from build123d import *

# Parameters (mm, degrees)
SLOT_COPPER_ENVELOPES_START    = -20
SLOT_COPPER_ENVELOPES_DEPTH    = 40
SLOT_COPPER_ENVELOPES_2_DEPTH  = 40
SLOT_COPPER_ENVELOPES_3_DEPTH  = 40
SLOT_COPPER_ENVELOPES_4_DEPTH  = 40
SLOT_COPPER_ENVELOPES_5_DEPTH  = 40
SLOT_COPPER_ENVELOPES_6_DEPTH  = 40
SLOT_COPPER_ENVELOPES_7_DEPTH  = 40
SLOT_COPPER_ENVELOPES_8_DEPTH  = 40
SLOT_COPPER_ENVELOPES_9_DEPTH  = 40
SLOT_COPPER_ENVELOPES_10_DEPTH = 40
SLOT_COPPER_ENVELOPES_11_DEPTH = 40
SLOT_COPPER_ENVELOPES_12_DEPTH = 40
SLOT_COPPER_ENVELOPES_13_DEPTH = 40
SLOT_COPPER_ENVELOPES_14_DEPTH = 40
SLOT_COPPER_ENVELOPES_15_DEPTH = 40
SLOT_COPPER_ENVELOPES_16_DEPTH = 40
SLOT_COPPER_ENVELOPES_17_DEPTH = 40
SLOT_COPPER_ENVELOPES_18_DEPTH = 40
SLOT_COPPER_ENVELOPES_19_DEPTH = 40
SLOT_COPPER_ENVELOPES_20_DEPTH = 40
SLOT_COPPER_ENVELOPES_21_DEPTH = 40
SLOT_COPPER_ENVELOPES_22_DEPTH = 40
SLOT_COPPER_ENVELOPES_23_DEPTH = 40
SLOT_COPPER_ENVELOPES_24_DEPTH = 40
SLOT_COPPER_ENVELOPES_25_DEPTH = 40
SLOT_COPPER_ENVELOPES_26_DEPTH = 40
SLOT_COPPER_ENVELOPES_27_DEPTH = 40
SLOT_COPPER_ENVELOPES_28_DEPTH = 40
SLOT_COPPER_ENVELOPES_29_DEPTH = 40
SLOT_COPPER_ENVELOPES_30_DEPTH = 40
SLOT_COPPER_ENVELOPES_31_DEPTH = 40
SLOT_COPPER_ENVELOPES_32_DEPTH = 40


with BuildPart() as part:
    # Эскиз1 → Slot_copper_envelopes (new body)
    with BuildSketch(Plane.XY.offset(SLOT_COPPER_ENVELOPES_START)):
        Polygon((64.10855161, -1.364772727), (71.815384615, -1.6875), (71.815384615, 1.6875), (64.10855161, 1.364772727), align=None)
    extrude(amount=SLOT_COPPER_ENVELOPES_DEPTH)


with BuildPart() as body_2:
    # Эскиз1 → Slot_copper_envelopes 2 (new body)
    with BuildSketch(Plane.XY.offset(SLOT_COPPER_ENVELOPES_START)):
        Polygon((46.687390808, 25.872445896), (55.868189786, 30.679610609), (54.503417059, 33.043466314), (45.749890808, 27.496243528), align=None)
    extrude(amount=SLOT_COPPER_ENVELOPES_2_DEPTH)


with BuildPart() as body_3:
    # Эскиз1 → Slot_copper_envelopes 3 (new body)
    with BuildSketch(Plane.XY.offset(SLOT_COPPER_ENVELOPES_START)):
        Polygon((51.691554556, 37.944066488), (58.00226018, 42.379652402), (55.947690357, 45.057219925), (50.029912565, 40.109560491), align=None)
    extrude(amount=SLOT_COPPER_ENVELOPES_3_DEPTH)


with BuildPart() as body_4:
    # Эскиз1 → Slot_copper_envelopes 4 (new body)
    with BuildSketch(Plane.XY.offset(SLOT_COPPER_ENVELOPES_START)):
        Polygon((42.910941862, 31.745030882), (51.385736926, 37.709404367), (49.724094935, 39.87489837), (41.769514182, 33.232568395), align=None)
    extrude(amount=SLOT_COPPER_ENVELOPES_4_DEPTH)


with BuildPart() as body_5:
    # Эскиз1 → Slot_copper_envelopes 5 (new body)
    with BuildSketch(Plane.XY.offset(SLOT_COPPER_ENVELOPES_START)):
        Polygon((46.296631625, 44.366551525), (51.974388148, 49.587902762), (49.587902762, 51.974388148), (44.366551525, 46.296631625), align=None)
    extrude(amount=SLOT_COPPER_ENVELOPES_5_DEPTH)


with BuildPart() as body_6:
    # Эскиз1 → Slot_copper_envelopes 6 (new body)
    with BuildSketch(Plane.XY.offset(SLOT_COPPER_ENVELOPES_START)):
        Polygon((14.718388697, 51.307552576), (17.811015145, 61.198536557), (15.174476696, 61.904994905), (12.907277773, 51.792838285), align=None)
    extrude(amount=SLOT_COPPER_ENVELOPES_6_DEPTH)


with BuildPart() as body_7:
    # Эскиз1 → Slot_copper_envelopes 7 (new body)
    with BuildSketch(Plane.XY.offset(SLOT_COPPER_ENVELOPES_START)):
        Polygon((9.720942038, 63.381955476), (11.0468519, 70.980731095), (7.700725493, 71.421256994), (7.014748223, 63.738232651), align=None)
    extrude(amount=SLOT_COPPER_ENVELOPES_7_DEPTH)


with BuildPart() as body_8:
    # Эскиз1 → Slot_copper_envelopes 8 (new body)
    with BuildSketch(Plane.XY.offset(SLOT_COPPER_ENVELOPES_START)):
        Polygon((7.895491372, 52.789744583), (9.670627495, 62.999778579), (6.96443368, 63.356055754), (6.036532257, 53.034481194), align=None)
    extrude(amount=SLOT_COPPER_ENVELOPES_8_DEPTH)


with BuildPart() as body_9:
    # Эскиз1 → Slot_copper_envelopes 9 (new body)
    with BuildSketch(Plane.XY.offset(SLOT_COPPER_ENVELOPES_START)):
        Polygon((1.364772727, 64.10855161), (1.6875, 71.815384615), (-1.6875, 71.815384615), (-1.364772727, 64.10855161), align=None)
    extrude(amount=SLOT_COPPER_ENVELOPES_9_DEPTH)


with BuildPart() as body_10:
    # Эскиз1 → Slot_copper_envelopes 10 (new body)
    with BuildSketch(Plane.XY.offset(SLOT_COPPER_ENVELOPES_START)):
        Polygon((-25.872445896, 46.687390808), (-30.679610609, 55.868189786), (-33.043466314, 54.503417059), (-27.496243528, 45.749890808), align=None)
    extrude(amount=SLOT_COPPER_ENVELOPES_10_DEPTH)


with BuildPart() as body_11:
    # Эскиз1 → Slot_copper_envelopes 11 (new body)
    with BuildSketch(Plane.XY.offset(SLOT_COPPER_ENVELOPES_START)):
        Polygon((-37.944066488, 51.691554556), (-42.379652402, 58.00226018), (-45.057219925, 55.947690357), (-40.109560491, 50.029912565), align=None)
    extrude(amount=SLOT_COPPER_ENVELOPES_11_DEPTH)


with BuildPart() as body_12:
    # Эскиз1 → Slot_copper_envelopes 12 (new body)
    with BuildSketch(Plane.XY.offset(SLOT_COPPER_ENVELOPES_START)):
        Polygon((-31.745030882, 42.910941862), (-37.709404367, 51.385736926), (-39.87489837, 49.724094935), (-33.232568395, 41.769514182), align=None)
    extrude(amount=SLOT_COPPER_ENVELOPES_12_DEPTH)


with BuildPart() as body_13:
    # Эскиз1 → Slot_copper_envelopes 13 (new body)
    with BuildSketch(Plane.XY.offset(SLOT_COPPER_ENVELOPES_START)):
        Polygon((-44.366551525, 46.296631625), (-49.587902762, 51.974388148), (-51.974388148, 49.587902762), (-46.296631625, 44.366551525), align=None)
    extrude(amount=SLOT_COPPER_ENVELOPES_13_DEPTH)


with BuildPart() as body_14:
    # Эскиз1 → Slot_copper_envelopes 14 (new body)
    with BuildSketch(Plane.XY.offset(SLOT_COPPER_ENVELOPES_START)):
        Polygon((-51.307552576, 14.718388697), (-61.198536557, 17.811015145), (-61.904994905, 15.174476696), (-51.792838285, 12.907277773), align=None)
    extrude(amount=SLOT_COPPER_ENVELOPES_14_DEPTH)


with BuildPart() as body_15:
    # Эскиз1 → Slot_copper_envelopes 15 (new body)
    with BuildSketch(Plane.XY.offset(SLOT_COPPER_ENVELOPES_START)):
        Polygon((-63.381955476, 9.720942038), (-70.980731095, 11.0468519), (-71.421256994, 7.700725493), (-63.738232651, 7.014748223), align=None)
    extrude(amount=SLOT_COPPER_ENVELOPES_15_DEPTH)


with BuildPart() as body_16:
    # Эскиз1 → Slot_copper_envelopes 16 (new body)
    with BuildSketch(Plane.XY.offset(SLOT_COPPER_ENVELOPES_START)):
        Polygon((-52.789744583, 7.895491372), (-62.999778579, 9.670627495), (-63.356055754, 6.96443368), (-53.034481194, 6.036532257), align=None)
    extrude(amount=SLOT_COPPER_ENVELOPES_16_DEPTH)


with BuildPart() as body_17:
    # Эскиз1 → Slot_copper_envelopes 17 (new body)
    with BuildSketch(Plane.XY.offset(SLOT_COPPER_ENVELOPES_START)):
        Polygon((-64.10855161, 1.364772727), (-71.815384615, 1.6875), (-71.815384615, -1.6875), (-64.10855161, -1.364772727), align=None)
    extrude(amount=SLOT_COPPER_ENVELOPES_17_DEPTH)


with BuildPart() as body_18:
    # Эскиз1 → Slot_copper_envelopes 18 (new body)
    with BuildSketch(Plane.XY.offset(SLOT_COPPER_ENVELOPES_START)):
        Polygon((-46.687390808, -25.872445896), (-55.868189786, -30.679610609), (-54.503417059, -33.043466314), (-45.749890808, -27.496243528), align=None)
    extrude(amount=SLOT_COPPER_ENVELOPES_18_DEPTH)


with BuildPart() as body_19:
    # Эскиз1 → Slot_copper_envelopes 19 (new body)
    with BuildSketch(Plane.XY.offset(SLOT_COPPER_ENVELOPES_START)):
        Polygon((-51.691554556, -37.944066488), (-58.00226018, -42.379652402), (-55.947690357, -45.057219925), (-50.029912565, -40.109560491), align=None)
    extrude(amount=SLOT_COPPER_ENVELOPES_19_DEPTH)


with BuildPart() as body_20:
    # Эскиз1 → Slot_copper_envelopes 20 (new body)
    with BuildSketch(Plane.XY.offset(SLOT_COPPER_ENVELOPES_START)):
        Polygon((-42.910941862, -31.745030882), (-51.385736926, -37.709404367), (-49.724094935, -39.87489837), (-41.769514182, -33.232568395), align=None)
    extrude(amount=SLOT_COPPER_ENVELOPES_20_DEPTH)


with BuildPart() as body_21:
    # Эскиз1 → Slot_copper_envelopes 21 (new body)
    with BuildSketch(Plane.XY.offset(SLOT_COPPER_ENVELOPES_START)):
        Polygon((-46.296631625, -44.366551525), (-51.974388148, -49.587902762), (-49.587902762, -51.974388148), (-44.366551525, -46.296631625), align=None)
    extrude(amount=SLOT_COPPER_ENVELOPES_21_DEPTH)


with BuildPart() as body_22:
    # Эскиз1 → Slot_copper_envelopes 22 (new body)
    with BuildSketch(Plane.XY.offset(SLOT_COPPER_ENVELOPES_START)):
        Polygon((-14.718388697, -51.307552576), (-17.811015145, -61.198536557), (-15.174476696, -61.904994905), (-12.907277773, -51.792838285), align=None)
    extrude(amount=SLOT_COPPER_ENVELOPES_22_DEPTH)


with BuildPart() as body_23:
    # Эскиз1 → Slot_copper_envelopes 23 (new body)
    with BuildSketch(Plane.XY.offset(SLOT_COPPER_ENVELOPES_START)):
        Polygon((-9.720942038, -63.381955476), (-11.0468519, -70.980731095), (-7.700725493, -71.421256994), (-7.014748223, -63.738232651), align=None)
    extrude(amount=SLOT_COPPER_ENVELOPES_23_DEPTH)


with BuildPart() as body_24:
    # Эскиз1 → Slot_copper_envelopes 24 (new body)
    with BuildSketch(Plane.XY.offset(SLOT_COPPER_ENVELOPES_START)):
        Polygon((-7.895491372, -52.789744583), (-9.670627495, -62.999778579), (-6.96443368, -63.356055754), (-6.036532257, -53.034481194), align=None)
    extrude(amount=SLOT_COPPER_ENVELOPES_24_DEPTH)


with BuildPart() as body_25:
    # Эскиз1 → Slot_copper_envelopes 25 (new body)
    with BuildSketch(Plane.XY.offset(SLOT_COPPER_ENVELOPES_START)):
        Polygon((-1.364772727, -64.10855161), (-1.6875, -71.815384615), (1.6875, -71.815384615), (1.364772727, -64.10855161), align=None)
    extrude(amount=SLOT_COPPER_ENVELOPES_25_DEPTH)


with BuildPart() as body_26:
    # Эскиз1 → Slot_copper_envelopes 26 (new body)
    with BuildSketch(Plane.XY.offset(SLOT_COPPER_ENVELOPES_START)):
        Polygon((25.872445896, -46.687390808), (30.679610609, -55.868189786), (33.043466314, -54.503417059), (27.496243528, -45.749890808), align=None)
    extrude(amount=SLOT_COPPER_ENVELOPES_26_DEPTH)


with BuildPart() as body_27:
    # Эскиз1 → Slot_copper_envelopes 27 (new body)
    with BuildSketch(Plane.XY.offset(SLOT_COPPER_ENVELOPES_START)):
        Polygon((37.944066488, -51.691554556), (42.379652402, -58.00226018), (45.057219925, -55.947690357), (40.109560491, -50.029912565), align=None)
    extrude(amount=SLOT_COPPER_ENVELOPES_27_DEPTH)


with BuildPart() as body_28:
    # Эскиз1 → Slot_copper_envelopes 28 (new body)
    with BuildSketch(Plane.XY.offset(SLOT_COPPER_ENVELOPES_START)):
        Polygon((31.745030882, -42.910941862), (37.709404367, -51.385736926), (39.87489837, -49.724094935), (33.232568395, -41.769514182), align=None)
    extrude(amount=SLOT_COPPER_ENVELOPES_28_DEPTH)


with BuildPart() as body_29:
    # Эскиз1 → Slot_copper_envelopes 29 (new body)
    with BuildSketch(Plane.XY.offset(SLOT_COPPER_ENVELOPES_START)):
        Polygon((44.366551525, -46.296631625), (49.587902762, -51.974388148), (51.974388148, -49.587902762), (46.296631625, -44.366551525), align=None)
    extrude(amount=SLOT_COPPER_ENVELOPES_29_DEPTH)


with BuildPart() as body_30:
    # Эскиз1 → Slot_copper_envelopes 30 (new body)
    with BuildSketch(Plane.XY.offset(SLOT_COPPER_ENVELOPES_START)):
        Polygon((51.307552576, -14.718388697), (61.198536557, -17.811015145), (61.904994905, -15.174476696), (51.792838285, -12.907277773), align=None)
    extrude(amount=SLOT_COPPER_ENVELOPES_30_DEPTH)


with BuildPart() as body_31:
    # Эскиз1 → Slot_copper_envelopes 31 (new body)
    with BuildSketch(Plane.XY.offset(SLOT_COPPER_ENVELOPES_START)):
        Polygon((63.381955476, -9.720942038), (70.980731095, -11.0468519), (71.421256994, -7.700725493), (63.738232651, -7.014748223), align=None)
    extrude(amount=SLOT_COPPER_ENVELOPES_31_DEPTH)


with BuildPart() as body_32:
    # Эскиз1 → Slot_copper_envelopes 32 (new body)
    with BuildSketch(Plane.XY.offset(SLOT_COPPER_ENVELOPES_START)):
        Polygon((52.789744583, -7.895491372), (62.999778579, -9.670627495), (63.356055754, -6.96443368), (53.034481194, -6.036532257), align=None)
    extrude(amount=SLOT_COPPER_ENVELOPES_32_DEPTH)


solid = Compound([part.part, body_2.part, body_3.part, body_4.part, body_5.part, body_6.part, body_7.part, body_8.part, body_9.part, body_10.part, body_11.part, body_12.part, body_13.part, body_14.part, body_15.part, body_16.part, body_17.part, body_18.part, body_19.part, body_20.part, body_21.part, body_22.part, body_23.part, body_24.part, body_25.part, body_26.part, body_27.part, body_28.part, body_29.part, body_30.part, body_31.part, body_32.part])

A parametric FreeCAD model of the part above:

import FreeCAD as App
import Part
import Sketcher
Q = App.Units.Quantity


def add_polygon(sketch, points):
    """Adds a closed chain of lines whose ends are joined by coincident constraints."""
    first, n = sketch.GeometryCount, len(points)
    for a, b in zip(points, points[1:] + points[:1]):
        sketch.addGeometry(Part.LineSegment(App.Vector(*a, 0), App.Vector(*b, 0)), False)
    for i in range(n):
        sketch.addConstraint(Sketcher.Constraint("Coincident", first + i, 2, first + (i + 1) % n, 1))

doc = App.newDocument("Part")
body = doc.addObject("PartDesign::Body", "Body")

sketch1 = body.newObject("Sketcher::SketchObject", "Sketch")
sketch1.AttachmentSupport = (doc.getObject("XY_Plane"), [""])
sketch1.MapMode = "FlatFace"
sketch1.AttachmentOffset = App.Placement(App.Vector(0, 0, -20), App.Rotation())
add_polygon(sketch1, [(64.1, -1.4), (71.8, -1.7), (71.8, 1.7), (64.1, 1.4)])
sketch1.addConstraint(Sketcher.Constraint("Vertical", 1))
sketch1.addConstraint(Sketcher.Constraint("Vertical", 3))
sketch1.addConstraint(Sketcher.Constraint("Equal", 0, 2))
sketch1.addConstraint(Sketcher.Constraint("DistanceY", 1, 1, 1, 2, 3.375))
sketch1.addConstraint(Sketcher.Constraint("DistanceY", 0, 2, -1, 1, 1.6875))
sketch1.addConstraint(Sketcher.Constraint("DistanceY", 3, 2, 3, 1, 2.729545))
sketch1.addConstraint(Sketcher.Constraint("DistanceX", -1, 1, 2, 2, 64.108552))
sketch1.addConstraint(Sketcher.Constraint("Distance", 0, 7.713587))
pad1 = body.newObject("PartDesign::Pad", "Pad")
pad1.Profile = sketch1
pad1.Length = 40
body2 = doc.addObject("PartDesign::Body", "Body001")

sketch2 = body2.newObject("Sketcher::SketchObject", "Sketch001")
sketch2.AttachmentSupport = (doc.getObject("XY_Plane001"), [""])
sketch2.MapMode = "FlatFace"
sketch2.AttachmentOffset = App.Placement(App.Vector(0, 0, -20), App.Rotation())
add_polygon(sketch2, [(46.7, 25.9), (55.9, 30.7), (54.5, 33), (45.7, 27.5)])
sketch2.addConstraint(Sketcher.Constraint("Parallel", 1, 3))
sketch2.addConstraint(Sketcher.Constraint("Equal", 0, 2))
sketch2.addConstraint(Sketcher.Constraint("Angle", 1, Q("120 deg")))
sketch2.addConstraint(Sketcher.Constraint("Distance", 3, 1.875))
sketch2.addConstraint(Sketcher.Constraint("Distance", 0, 10.363199))
sketch2.addConstraint(Sketcher.Constraint("DistanceX", 2, 2, 0, 2, 10.118299))
sketch2.addConstraint(Sketcher.Constraint("DistanceX", -1, 1, 0, 2, 55.86819))
sketch2.addConstraint(Sketcher.Constraint("DistanceY", -1, 1, 0, 2, 30.679611))
pad2 = body2.newObject("PartDesign::Pad", "Pad001")
pad2.Profile = sketch2
pad2.Length = 40
body3 = doc.addObject("PartDesign::Body", "Body002")

sketch3 = body3.newObject("Sketcher::SketchObject", "Sketch002")
sketch3.AttachmentSupport = (doc.getObject("XY_Plane002"), [""])
sketch3.MapMode = "FlatFace"
sketch3.AttachmentOffset = App.Placement(App.Vector(0, 0, -20), App.Rotation())
add_polygon(sketch3, [(51.7, 37.9), (58, 42.4), (55.9, 45.1), (50, 40.1)])
sketch3.addConstraint(Sketcher.Constraint("Parallel", 1, 3))
sketch3.addConstraint(Sketcher.Constraint("Equal", 0, 2))
sketch3.addConstraint(Sketcher.Constraint("Angle", 1, Q("127.5 deg")))
sketch3.addConstraint(Sketcher.Constraint("Distance", 1, 3.375))
sketch3.addConstraint(Sketcher.Constraint("DistanceX", -1, 1, 0, 2, 58.00226))
sketch3.addConstraint(Sketcher.Constraint("DistanceY", -1, 1, 1, 2, 45.05722))
sketch3.addConstraint(Sketcher.Constraint("DistanceY", -1, 1, 2, 2, 40.10956))
sketch3.addConstraint(Sketcher.Constraint("DistanceX", 2, 2, 3, 2, 1.661642))
pad3 = body3.newObject("PartDesign::Pad", "Pad002")
pad3.Profile = sketch3
pad3.Length = 40
body4 = doc.addObject("PartDesign::Body", "Body003")

sketch4 = body4.newObject("Sketcher::SketchObject", "Sketch003")
sketch4.AttachmentSupport = (doc.getObject("XY_Plane003"), [""])
sketch4.MapMode = "FlatFace"
sketch4.AttachmentOffset = App.Placement(App.Vector(0, 0, -20), App.Rotation())
add_polygon(sketch4, [(42.9, 31.7), (51.4, 37.7), (49.7, 39.9), (41.8, 33.2)])
sketch4.addConstraint(Sketcher.Constraint("Parallel", 1, 3))
sketch4.addConstraint(Sketcher.Constraint("Equal", 0, 2))
sketch4.addConstraint(Sketcher.Constraint("Angle", 1, Q("127.5 deg")))
sketch4.addConstraint(Sketcher.Constraint("Distance", 3, 1.875))
sketch4.addConstraint(Sketcher.Constraint("Distance", 0, 10.363199))
sketch4.addConstraint(Sketcher.Constraint("DistanceY", -1, 1, 1, 2, 39.874898))
sketch4.addConstraint(Sketcher.Constraint("DistanceY", -1, 1, 2, 2, 33.232568))
sketch4.addConstraint(Sketcher.Constraint("DistanceX", -1, 1, 3, 2, 42.910942))
pad4 = body4.newObject("PartDesign::Pad", "Pad003")
pad4.Profile = sketch4
pad4.Length = 40
body5 = doc.addObject("PartDesign::Body", "Body004")

sketch5 = body5.newObject("Sketcher::SketchObject", "Sketch004")
sketch5.AttachmentSupport = (doc.getObject("XY_Plane004"), [""])
sketch5.MapMode = "FlatFace"
sketch5.AttachmentOffset = App.Placement(App.Vector(0, 0, -20), App.Rotation())
add_polygon(sketch5, [(46.3, 44.4), (52, 49.6), (49.6, 52), (44.4, 46.3)])
sketch5.addConstraint(Sketcher.Constraint("Parallel", 1, 3))
sketch5.addConstraint(Sketcher.Constraint("Equal", 0, 2))
sketch5.addConstraint(Sketcher.Constraint("Angle", 1, Q("135 deg")))
sketch5.addConstraint(Sketcher.Constraint("Distance", 1, 3.375))
sketch5.addConstraint(Sketcher.Constraint("DistanceX", -1, 1, 0, 2, 51.974388))
sketch5.addConstraint(Sketcher.Constraint("DistanceY", -1, 1, 1, 2, 51.974388))
sketch5.addConstraint(Sketcher.Constraint("DistanceX", -1, 1, 2, 2, 44.366552))
sketch5.addConstraint(Sketcher.Constraint("DistanceY", -1, 1, 2, 2, 46.296632))
pad5 = body5.newObject("PartDesign::Pad", "Pad004")
pad5.Profile = sketch5
pad5.Length = 40
body6 = doc.addObject("PartDesign::Body", "Body005")

sketch6 = body6.newObject("Sketcher::SketchObject", "Sketch005")
sketch6.AttachmentSupport = (doc.getObject("XY_Plane005"), [""])
sketch6.MapMode = "FlatFace"
sketch6.AttachmentOffset = App.Placement(App.Vector(0, 0, -20), App.Rotation())
add_polygon(sketch6, [(14.7, 51.3), (17.8, 61.2), (15.2, 61.9), (12.9, 51.8)])
sketch6.addConstraint(Sketcher.Constraint("Parallel", 1, 3))
sketch6.addConstraint(Sketcher.Constraint("Equal", 0, 2))
sketch6.addConstraint(Sketcher.Constraint("Angle", 1, Q("165 deg")))
sketch6.addConstraint(Sketcher.Constraint("Distance", 3, 1.875))
sketch6.addConstraint(Sketcher.Constraint("Distance", 0, 10.363199))
sketch6.addConstraint(Sketcher.Constraint("DistanceX", 2, 2, 1, 2, 2.267199))
sketch6.addConstraint(Sketcher.Constraint("DistanceY", -1, 1, 2, 2, 51.792838))
sketch6.addConstraint(Sketcher.Constraint("DistanceX", -1, 1, 3, 2, 14.718389))
pad6 = body6.newObject("PartDesign::Pad", "Pad005")
pad6.Profile = sketch6
pad6.Length = 40
body7 = doc.addObject("PartDesign::Body", "Body006")

sketch7 = body7.newObject("Sketcher::SketchObject", "Sketch006")
sketch7.AttachmentSupport = (doc.getObject("XY_Plane006"), [""])
sketch7.MapMode = "FlatFace"
sketch7.AttachmentOffset = App.Placement(App.Vector(0, 0, -20), App.Rotation())
add_polygon(sketch7, [(9.7, 63.4), (11, 71), (7.7, 71.4), (7, 63.7)])
sketch7.addConstraint(Sketcher.Constraint("Parallel", 1, 3))
sketch7.addConstraint(Sketcher.Constraint("Equal", 0, 2))
sketch7.addConstraint(Sketcher.Constraint("Angle", 1, Q("172.5 deg")))
sketch7.addConstraint(Sketcher.Constraint("Distance", 1, 3.375))
sketch7.addConstraint(Sketcher.Constraint("DistanceY", 2, 2, 0, 2, 7.242498))
sketch7.addConstraint(Sketcher.Constraint("DistanceY", 3, 2, 1, 2, 8.039302))
sketch7.addConstraint(Sketcher.Constraint("DistanceX", -1, 1, 0, 2, 11.046852))
sketch7.addConstraint(Sketcher.Constraint("DistanceY", -1, 1, 0, 2, 70.980731))
pad7 = body7.newObject("PartDesign::Pad", "Pad006")
pad7.Profile = sketch7
pad7.Length = 40
body8 = doc.addObject("PartDesign::Body", "Body007")

sketch8 = body8.newObject("Sketcher::SketchObject", "Sketch007")
sketch8.AttachmentSupport = (doc.getObject("XY_Plane007"), [""])
sketch8.MapMode = "FlatFace"
sketch8.AttachmentOffset = App.Placement(App.Vector(0, 0, -20), App.Rotation())
add_polygon(sketch8, [(7.9, 52.8), (9.7, 63), (7, 63.4), (6, 53)])
sketch8.addConstraint(Sketcher.Constraint("Parallel", 1, 3))
sketch8.addConstraint(Sketcher.Constraint("Equal", 0, 2))
sketch8.addConstraint(Sketcher.Constraint("Angle", 1, Q("172.5 deg")))
sketch8.addConstraint(Sketcher.Constraint("Distance", 3, 1.875))
sketch8.addConstraint(Sketcher.Constraint("Distance", 0, 10.363199))
sketch8.addConstraint(Sketcher.Constraint("DistanceX", 2, 2, 1, 2, 0.927901))
sketch8.addConstraint(Sketcher.Constraint("DistanceY", -1, 1, 0, 2, 62.999779))
sketch8.addConstraint(Sketcher.Constraint("DistanceX", -1, 1, 3, 2, 7.895491))
pad8 = body8.newObject("PartDesign::Pad", "Pad007")
pad8.Profile = sketch8
pad8.Length = 40
body9 = doc.addObject("PartDesign::Body", "Body008")

sketch9 = body9.newObject("Sketcher::SketchObject", "Sketch008")
sketch9.AttachmentSupport = (doc.getObject("XY_Plane008"), [""])
sketch9.MapMode = "FlatFace"
sketch9.AttachmentOffset = App.Placement(App.Vector(0, 0, -20), App.Rotation())
add_polygon(sketch9, [(1.4, 64.1), (1.7, 71.8), (-1.7, 71.8), (-1.4, 64.1)])
sketch9.addConstraint(Sketcher.Constraint("Horizontal", 1))
sketch9.addConstraint(Sketcher.Constraint("Horizontal", 3))
sketch9.addConstraint(Sketcher.Constraint("Equal", 0, 2))
sketch9.addConstraint(Sketcher.Constraint("DistanceX", 1, 2, 1, 1, 3.375))
sketch9.addConstraint(Sketcher.Constraint("DistanceX", -1, 1, 0, 2, 1.6875))
sketch9.addConstraint(Sketcher.Constraint("DistanceX", 3, 1, 3, 2, 2.729545))
sketch9.addConstraint(Sketcher.Constraint("DistanceY", -1, 1, 2, 2, 64.108552))
sketch9.addConstraint(Sketcher.Constraint("Distance", 0, 7.713587))
pad9 = body9.newObject("PartDesign::Pad", "Pad008")
pad9.Profile = sketch9
pad9.Length = 40
body10 = doc.addObject("PartDesign::Body", "Body009")

sketch10 = body10.newObject("Sketcher::SketchObject", "Sketch009")
sketch10.AttachmentSupport = (doc.getObject("XY_Plane009"), [""])
sketch10.MapMode = "FlatFace"
sketch10.AttachmentOffset = App.Placement(App.Vector(0, 0, -20), App.Rotation())
add_polygon(sketch10, [(-25.9, 46.7), (-30.7, 55.9), (-33, 54.5), (-27.5, 45.7)])
sketch10.addConstraint(Sketcher.Constraint("Parallel", 1, 3))
sketch10.addConstraint(Sketcher.Constraint("Equal", 0, 2))
sketch10.addConstraint(Sketcher.Constraint("Angle", 1, Q("-150 deg")))
sketch10.addConstraint(Sketcher.Constraint("Distance", 3, 1.875))
sketch10.addConstraint(Sketcher.Constraint("Distance", 0, 10.363199))
sketch10.addConstraint(Sketcher.Constraint("DistanceY", 2, 2, 0, 2, 10.118299))
sketch10.addConstraint(Sketcher.Constraint("DistanceX", 0, 2, -1, 1, 30.679611))
sketch10.addConstraint(Sketcher.Constraint("DistanceY", -1, 1, 0, 2, 55.86819))
pad10 = body10.newObject("PartDesign::Pad", "Pad009")
pad10.Profile = sketch10
pad10.Length = 40
body11 = doc.addObject("PartDesign::Body", "Body010")

sketch11 = body11.newObject("Sketcher::SketchObject", "Sketch010")
sketch11.AttachmentSupport = (doc.getObject("XY_Plane010"), [""])
sketch11.MapMode = "FlatFace"
sketch11.AttachmentOffset = App.Placement(App.Vector(0, 0, -20), App.Rotation())
add_polygon(sketch11, [(-37.9, 51.7), (-42.4, 58), (-45.1, 55.9), (-40.1, 50)])
sketch11.addConstraint(Sketcher.Constraint("Parallel", 1, 3))
sketch11.addConstraint(Sketcher.Constraint("Equal", 0, 2))
sketch11.addConstraint(Sketcher.Constraint("Angle", 1, Q("-142.5 deg")))
sketch11.addConstraint(Sketcher.Constraint("Distance", 1, 3.375))
sketch11.addConstraint(Sketcher.Constraint("DistanceY", -1, 1, 0, 2, 58.00226))
sketch11.addConstraint(Sketcher.Constraint("DistanceX", 1, 2, -1, 1, 45.05722))
sketch11.addConstraint(Sketcher.Constraint("DistanceX", 2, 2, -1, 1, 40.10956))
sketch11.addConstraint(Sketcher.Constraint("DistanceY", 2, 2, 3, 2, 1.661642))
pad11 = body11.newObject("PartDesign::Pad", "Pad010")
pad11.Profile = sketch11
pad11.Length = 40
body12 = doc.addObject("PartDesign::Body", "Body011")

sketch12 = body12.newObject("Sketcher::SketchObject", "Sketch011")
sketch12.AttachmentSupport = (doc.getObject("XY_Plane011"), [""])
sketch12.MapMode = "FlatFace"
sketch12.AttachmentOffset = App.Placement(App.Vector(0, 0, -20), App.Rotation())
add_polygon(sketch12, [(-31.7, 42.9), (-37.7, 51.4), (-39.9, 49.7), (-33.2, 41.8)])
sketch12.addConstraint(Sketcher.Constraint("Parallel", 1, 3))
sketch12.addConstraint(Sketcher.Constraint("Equal", 0, 2))
sketch12.addConstraint(Sketcher.Constraint("Angle", 1, Q("-142.5 deg")))
sketch12.addConstraint(Sketcher.Constraint("Distance", 3, 1.875))
sketch12.addConstraint(Sketcher.Constraint("Distance", 0, 10.363199))
sketch12.addConstraint(Sketcher.Constraint("DistanceX", 1, 2, -1, 1, 39.874898))
sketch12.addConstraint(Sketcher.Constraint("DistanceX", 2, 2, -1, 1, 33.232568))
sketch12.addConstraint(Sketcher.Constraint("DistanceY", -1, 1, 3, 2, 42.910942))
pad12 = body12.newObject("PartDesign::Pad", "Pad011")
pad12.Profile = sketch12
pad12.Length = 40
body13 = doc.addObject("PartDesign::Body", "Body012")

sketch13 = body13.newObject("Sketcher::SketchObject", "Sketch012")
sketch13.AttachmentSupport = (doc.getObject("XY_Plane012"), [""])
sketch13.MapMode = "FlatFace"
sketch13.AttachmentOffset = App.Placement(App.Vector(0, 0, -20), App.Rotation())
add_polygon(sketch13, [(-44.4, 46.3), (-49.6, 52), (-52, 49.6), (-46.3, 44.4)])
sketch13.addConstraint(Sketcher.Constraint("Parallel", 1, 3))
sketch13.addConstraint(Sketcher.Constraint("Equal", 0, 2))
sketch13.addConstraint(Sketcher.Constraint("Angle", 1, Q("-135 deg")))
sketch13.addConstraint(Sketcher.Constraint("Distance", 1, 3.375))
sketch13.addConstraint(Sketcher.Constraint("DistanceY", -1, 1, 0, 2, 51.974388))
sketch13.addConstraint(Sketcher.Constraint("DistanceX", 1, 2, -1, 1, 51.974388))
sketch13.addConstraint(Sketcher.Constraint("DistanceX", 2, 2, -1, 1, 46.296632))
sketch13.addConstraint(Sketcher.Constraint("DistanceY", -1, 1, 2, 2, 44.366552))
pad13 = body13.newObject("PartDesign::Pad", "Pad012")
pad13.Profile = sketch13
pad13.Length = 40
body14 = doc.addObject("PartDesign::Body", "Body013")

sketch14 = body14.newObject("Sketcher::SketchObject", "Sketch013")
sketch14.AttachmentSupport = (doc.getObject("XY_Plane013"), [""])
sketch14.MapMode = "FlatFace"
sketch14.AttachmentOffset = App.Placement(App.Vector(0, 0, -20), App.Rotation())
add_polygon(sketch14, [(-51.3, 14.7), (-61.2, 17.8), (-61.9, 15.2), (-51.8, 12.9)])
sketch14.addConstraint(Sketcher.Constraint("Parallel", 1, 3))
sketch14.addConstraint(Sketcher.Constraint("Equal", 0, 2))
sketch14.addConstraint(Sketcher.Constraint("Angle", 1, Q("-105 deg")))
sketch14.addConstraint(Sketcher.Constraint("Distance", 3, 1.875))
sketch14.addConstraint(Sketcher.Constraint("Distance", 0, 10.363199))
sketch14.addConstraint(Sketcher.Constraint("DistanceY", 2, 2, 1, 2, 2.267199))
sketch14.addConstraint(Sketcher.Constraint("DistanceX", 2, 2, -1, 1, 51.792838))
sketch14.addConstraint(Sketcher.Constraint("DistanceY", -1, 1, 3, 2, 14.718389))
pad14 = body14.newObject("PartDesign::Pad", "Pad013")
pad14.Profile = sketch14
pad14.Length = 40
body15 = doc.addObject("PartDesign::Body", "Body014")

sketch15 = body15.newObject("Sketcher::SketchObject", "Sketch014")
sketch15.AttachmentSupport = (doc.getObject("XY_Plane014"), [""])
sketch15.MapMode = "FlatFace"
sketch15.AttachmentOffset = App.Placement(App.Vector(0, 0, -20), App.Rotation())
add_polygon(sketch15, [(-63.4, 9.7), (-71, 11), (-71.4, 7.7), (-63.7, 7)])
sketch15.addConstraint(Sketcher.Constraint("Parallel", 1, 3))
sketch15.addConstraint(Sketcher.Constraint("Equal", 0, 2))
sketch15.addConstraint(Sketcher.Constraint("Angle", 1, Q("-97.5 deg")))
sketch15.addConstraint(Sketcher.Constraint("Distance", 1, 3.375))
sketch15.addConstraint(Sketcher.Constraint("DistanceX", 0, 2, 2, 2, 7.242498))
sketch15.addConstraint(Sketcher.Constraint("DistanceX", 1, 2, 3, 2, 8.039302))
sketch15.addConstraint(Sketcher.Constraint("DistanceX", 0, 2, -1, 1, 70.980731))
sketch15.addConstraint(Sketcher.Constraint("DistanceY", -1, 1, 0, 2, 11.046852))
pad15 = body15.newObject("PartDesign::Pad", "Pad014")
pad15.Profile = sketch15
pad15.Length = 40
body16 = doc.addObject("PartDesign::Body", "Body015")

sketch16 = body16.newObject("Sketcher::SketchObject", "Sketch015")
sketch16.AttachmentSupport = (doc.getObject("XY_Plane015"), [""])
sketch16.MapMode = "FlatFace"
sketch16.AttachmentOffset = App.Placement(App.Vector(0, 0, -20), App.Rotation())
add_polygon(sketch16, [(-52.8, 7.9), (-63, 9.7), (-63.4, 7), (-53, 6)])
sketch16.addConstraint(Sketcher.Constraint("Parallel", 1, 3))
sketch16.addConstraint(Sketcher.Constraint("Equal", 0, 2))
sketch16.addConstraint(Sketcher.Constraint("Angle", 1, Q("-97.5 deg")))
sketch16.addConstraint(Sketcher.Constraint("Distance", 3, 1.875))
sketch16.addConstraint(Sketcher.Constraint("Distance", 0, 10.363199))
sketch16.addConstraint(Sketcher.Constraint("DistanceY", 2, 2, 1, 2, 0.927901))
sketch16.addConstraint(Sketcher.Constraint("DistanceX", 0, 2, -1, 1, 62.999779))
sketch16.addConstraint(Sketcher.Constraint("DistanceY", -1, 1, 3, 2, 7.895491))
pad16 = body16.newObject("PartDesign::Pad", "Pad015")
pad16.Profile = sketch16
pad16.Length = 40
body17 = doc.addObject("PartDesign::Body", "Body016")

sketch17 = body17.newObject("Sketcher::SketchObject", "Sketch016")
sketch17.AttachmentSupport = (doc.getObject("XY_Plane016"), [""])
sketch17.MapMode = "FlatFace"
sketch17.AttachmentOffset = App.Placement(App.Vector(0, 0, -20), App.Rotation())
add_polygon(sketch17, [(-64.1, 1.4), (-71.8, 1.7), (-71.8, -1.7), (-64.1, -1.4)])
sketch17.addConstraint(Sketcher.Constraint("Vertical", 1))
sketch17.addConstraint(Sketcher.Constraint("Vertical", 3))
sketch17.addConstraint(Sketcher.Constraint("Equal", 0, 2))
sketch17.addConstraint(Sketcher.Constraint("DistanceY", 1, 2, 1, 1, 3.375))
sketch17.addConstraint(Sketcher.Constraint("DistanceY", -1, 1, 0, 2, 1.6875))
sketch17.addConstraint(Sketcher.Constraint("DistanceY", 3, 1, 3, 2, 2.729545))
sketch17.addConstraint(Sketcher.Constraint("DistanceX", 2, 2, -1, 1, 64.108552))
sketch17.addConstraint(Sketcher.Constraint("Distance", 0, 7.713587))
pad17 = body17.newObject("PartDesign::Pad", "Pad016")
pad17.Profile = sketch17
pad17.Length = 40
body18 = doc.addObject("PartDesign::Body", "Body017")

sketch18 = body18.newObject("Sketcher::SketchObject", "Sketch017")
sketch18.AttachmentSupport = (doc.getObject("XY_Plane017"), [""])
sketch18.MapMode = "FlatFace"
sketch18.AttachmentOffset = App.Placement(App.Vector(0, 0, -20), App.Rotation())
add_polygon(sketch18, [(-46.7, -25.9), (-55.9, -30.7), (-54.5, -33), (-45.7, -27.5)])
sketch18.addConstraint(Sketcher.Constraint("Parallel", 1, 3))
sketch18.addConstraint(Sketcher.Constraint("Equal", 0, 2))
sketch18.addConstraint(Sketcher.Constraint("Angle", 1, Q("-60 deg")))
sketch18.addConstraint(Sketcher.Constraint("Distance", 3, 1.875))
sketch18.addConstraint(Sketcher.Constraint("Distance", 0, 10.363199))
sketch18.addConstraint(Sketcher.Constraint("DistanceX", 0, 2, 2, 2, 10.118299))
sketch18.addConstraint(Sketcher.Constraint("DistanceX", 0, 2, -1, 1, 55.86819))
sketch18.addConstraint(Sketcher.Constraint("DistanceY", 0, 2, -1, 1, 30.679611))
pad18 = body18.newObject("PartDesign::Pad", "Pad017")
pad18.Profile = sketch18
pad18.Length = 40
body19 = doc.addObject("PartDesign::Body", "Body018")

sketch19 = body19.newObject("Sketcher::SketchObject", "Sketch018")
sketch19.AttachmentSupport = (doc.getObject("XY_Plane018"), [""])
sketch19.MapMode = "FlatFace"
sketch19.AttachmentOffset = App.Placement(App.Vector(0, 0, -20), App.Rotation())
add_polygon(sketch19, [(-51.7, -37.9), (-58, -42.4), (-55.9, -45.1), (-50, -40.1)])
sketch19.addConstraint(Sketcher.Constraint("Parallel", 1, 3))
sketch19.addConstraint(Sketcher.Constraint("Equal", 0, 2))
sketch19.addConstraint(Sketcher.Constraint("Angle", 1, Q("-52.5 deg")))
sketch19.addConstraint(Sketcher.Constraint("Distance", 1, 3.375))
sketch19.addConstraint(Sketcher.Constraint("DistanceX", 0, 2, -1, 1, 58.00226))
sketch19.addConstraint(Sketcher.Constraint("DistanceY", 1, 2, -1, 1, 45.05722))
sketch19.addConstraint(Sketcher.Constraint("DistanceY", 2, 2, -1, 1, 40.10956))
sketch19.addConstraint(Sketcher.Constraint("DistanceX", 3, 2, 2, 2, 1.661642))
pad19 = body19.newObject("PartDesign::Pad", "Pad018")
pad19.Profile = sketch19
pad19.Length = 40
body20 = doc.addObject("PartDesign::Body", "Body019")

sketch20 = body20.newObject("Sketcher::SketchObject", "Sketch019")
sketch20.AttachmentSupport = (doc.getObject("XY_Plane019"), [""])
sketch20.MapMode = "FlatFace"
sketch20.AttachmentOffset = App.Placement(App.Vector(0, 0, -20), App.Rotation())
add_polygon(sketch20, [(-42.9, -31.7), (-51.4, -37.7), (-49.7, -39.9), (-41.8, -33.2)])
sketch20.addConstraint(Sketcher.Constraint("Parallel", 1, 3))
sketch20.addConstraint(Sketcher.Constraint("Equal", 0, 2))
sketch20.addConstraint(Sketcher.Constraint("Angle", 1, Q("-52.5 deg")))
sketch20.addConstraint(Sketcher.Constraint("Distance", 3, 1.875))
sketch20.addConstraint(Sketcher.Constraint("Distance", 0, 10.363199))
sketch20.addConstraint(Sketcher.Constraint("DistanceY", 1, 2, -1, 1, 39.874898))
sketch20.addConstraint(Sketcher.Constraint("DistanceY", 2, 2, -1, 1, 33.232568))
sketch20.addConstraint(Sketcher.Constraint("DistanceX", 3, 2, -1, 1, 42.910942))
pad20 = body20.newObject("PartDesign::Pad", "Pad019")
pad20.Profile = sketch20
pad20.Length = 40
body21 = doc.addObject("PartDesign::Body", "Body020")

sketch21 = body21.newObject("Sketcher::SketchObject", "Sketch020")
sketch21.AttachmentSupport = (doc.getObject("XY_Plane020"), [""])
sketch21.MapMode = "FlatFace"
sketch21.AttachmentOffset = App.Placement(App.Vector(0, 0, -20), App.Rotation())
add_polygon(sketch21, [(-46.3, -44.4), (-52, -49.6), (-49.6, -52), (-44.4, -46.3)])
sketch21.addConstraint(Sketcher.Constraint("Parallel", 1, 3))
sketch21.addConstraint(Sketcher.Constraint("Equal", 0, 2))
sketch21.addConstraint(Sketcher.Constraint("Angle", 1, Q("-45 deg")))
sketch21.addConstraint(Sketcher.Constraint("Distance", 1, 3.375))
sketch21.addConstraint(Sketcher.Constraint("DistanceX", 0, 2, -1, 1, 51.974388))
sketch21.addConstraint(Sketcher.Constraint("DistanceY", 1, 2, -1, 1, 51.974388))
sketch21.addConstraint(Sketcher.Constraint("DistanceX", 2, 2, -1, 1, 44.366552))
sketch21.addConstraint(Sketcher.Constraint("DistanceY", 2, 2, -1, 1, 46.296632))
pad21 = body21.newObject("PartDesign::Pad", "Pad020")
pad21.Profile = sketch21
pad21.Length = 40
body22 = doc.addObject("PartDesign::Body", "Body021")

sketch22 = body22.newObject("Sketcher::SketchObject", "Sketch021")
sketch22.AttachmentSupport = (doc.getObject("XY_Plane021"), [""])
sketch22.MapMode = "FlatFace"
sketch22.AttachmentOffset = App.Placement(App.Vector(0, 0, -20), App.Rotation())
add_polygon(sketch22, [(-14.7, -51.3), (-17.8, -61.2), (-15.2, -61.9), (-12.9, -51.8)])
sketch22.addConstraint(Sketcher.Constraint("Parallel", 1, 3))
sketch22.addConstraint(Sketcher.Constraint("Equal", 0, 2))
sketch22.addConstraint(Sketcher.Constraint("Angle", 1, Q("-15 deg")))
sketch22.addConstraint(Sketcher.Constraint("Distance", 3, 1.875))
sketch22.addConstraint(Sketcher.Constraint("Distance", 0, 10.363199))
sketch22.addConstraint(Sketcher.Constraint("DistanceX", 1, 2, 2, 2, 2.267199))
sketch22.addConstraint(Sketcher.Constraint("DistanceY", 2, 2, -1, 1, 51.792838))
sketch22.addConstraint(Sketcher.Constraint("DistanceX", 3, 2, -1, 1, 14.718389))
pad22 = body22.newObject("PartDesign::Pad", "Pad021")
pad22.Profile = sketch22
pad22.Length = 40
body23 = doc.addObject("PartDesign::Body", "Body022")

sketch23 = body23.newObject("Sketcher::SketchObject", "Sketch022")
sketch23.AttachmentSupport = (doc.getObject("XY_Plane022"), [""])
sketch23.MapMode = "FlatFace"
sketch23.AttachmentOffset = App.Placement(App.Vector(0, 0, -20), App.Rotation())
add_polygon(sketch23, [(-9.7, -63.4), (-11, -71), (-7.7, -71.4), (-7, -63.7)])
sketch23.addConstraint(Sketcher.Constraint("Parallel", 1, 3))
sketch23.addConstraint(Sketcher.Constraint("Equal", 0, 2))
sketch23.addConstraint(Sketcher.Constraint("Angle", 1, Q("-7.5 deg")))
sketch23.addConstraint(Sketcher.Constraint("Distance", 1, 3.375))
sketch23.addConstraint(Sketcher.Constraint("DistanceY", 0, 2, 2, 2, 7.242498))
sketch23.addConstraint(Sketcher.Constraint("DistanceY", 1, 2, 3, 2, 8.039302))
sketch23.addConstraint(Sketcher.Constraint("DistanceX", 0, 2, -1, 1, 11.046852))
sketch23.addConstraint(Sketcher.Constraint("DistanceY", 0, 2, -1, 1, 70.980731))
pad23 = body23.newObject("PartDesign::Pad", "Pad022")
pad23.Profile = sketch23
pad23.Length = 40
body24 = doc.addObject("PartDesign::Body", "Body023")

sketch24 = body24.newObject("Sketcher::SketchObject", "Sketch023")
sketch24.AttachmentSupport = (doc.getObject("XY_Plane023"), [""])
sketch24.MapMode = "FlatFace"
sketch24.AttachmentOffset = App.Placement(App.Vector(0, 0, -20), App.Rotation())
add_polygon(sketch24, [(-7.9, -52.8), (-9.7, -63), (-7, -63.4), (-6, -53)])
sketch24.addConstraint(Sketcher.Constraint("Parallel", 1, 3))
sketch24.addConstraint(Sketcher.Constraint("Equal", 0, 2))
sketch24.addConstraint(Sketcher.Constraint("Angle", 1, Q("-7.5 deg")))
sketch24.addConstraint(Sketcher.Constraint("Distance", 3, 1.875))
sketch24.addConstraint(Sketcher.Constraint("Distance", 0, 10.363199))
sketch24.addConstraint(Sketcher.Constraint("DistanceX", 1, 2, 2, 2, 0.927901))
sketch24.addConstraint(Sketcher.Constraint("DistanceY", 0, 2, -1, 1, 62.999779))
sketch24.addConstraint(Sketcher.Constraint("DistanceX", 3, 2, -1, 1, 7.895491))
pad24 = body24.newObject("PartDesign::Pad", "Pad023")
pad24.Profile = sketch24
pad24.Length = 40
body25 = doc.addObject("PartDesign::Body", "Body024")

sketch25 = body25.newObject("Sketcher::SketchObject", "Sketch024")
sketch25.AttachmentSupport = (doc.getObject("XY_Plane024"), [""])
sketch25.MapMode = "FlatFace"
sketch25.AttachmentOffset = App.Placement(App.Vector(0, 0, -20), App.Rotation())
add_polygon(sketch25, [(-1.4, -64.1), (-1.7, -71.8), (1.7, -71.8), (1.4, -64.1)])
sketch25.addConstraint(Sketcher.Constraint("Horizontal", 1))
sketch25.addConstraint(Sketcher.Constraint("Horizontal", 3))
sketch25.addConstraint(Sketcher.Constraint("Equal", 0, 2))
sketch25.addConstraint(Sketcher.Constraint("DistanceX", 1, 1, 1, 2, 3.375))
sketch25.addConstraint(Sketcher.Constraint("DistanceX", 0, 2, -1, 1, 1.6875))
sketch25.addConstraint(Sketcher.Constraint("DistanceX", 3, 2, 3, 1, 2.729545))
sketch25.addConstraint(Sketcher.Constraint("DistanceY", 2, 2, -1, 1, 64.108552))
sketch25.addConstraint(Sketcher.Constraint("Distance", 0, 7.713587))
pad25 = body25.newObject("PartDesign::Pad", "Pad024")
pad25.Profile = sketch25
pad25.Length = 40
body26 = doc.addObject("PartDesign::Body", "Body025")

sketch26 = body26.newObject("Sketcher::SketchObject", "Sketch025")
sketch26.AttachmentSupport = (doc.getObject("XY_Plane025"), [""])
sketch26.MapMode = "FlatFace"
sketch26.AttachmentOffset = App.Placement(App.Vector(0, 0, -20), App.Rotation())
add_polygon(sketch26, [(25.9, -46.7), (30.7, -55.9), (33, -54.5), (27.5, -45.7)])
sketch26.addConstraint(Sketcher.Constraint("Parallel", 1, 3))
sketch26.addConstraint(Sketcher.Constraint("Equal", 0, 2))
sketch26.addConstraint(Sketcher.Constraint("Angle", 1, Q("30 deg")))
sketch26.addConstraint(Sketcher.Constraint("Distance", 3, 1.875))
sketch26.addConstraint(Sketcher.Constraint("Distance", 0, 10.363199))
sketch26.addConstraint(Sketcher.Constraint("DistanceY", 0, 2, 2, 2, 10.118299))
sketch26.addConstraint(Sketcher.Constraint("DistanceX", -1, 1, 0, 2, 30.679611))
sketch26.addConstraint(Sketcher.Constraint("DistanceY", 0, 2, -1, 1, 55.86819))
pad26 = body26.newObject("PartDesign::Pad", "Pad025")
pad26.Profile = sketch26
pad26.Length = 40
body27 = doc.addObject("PartDesign::Body", "Body026")

sketch27 = body27.newObject("Sketcher::SketchObject", "Sketch026")
sketch27.AttachmentSupport = (doc.getObject("XY_Plane026"), [""])
sketch27.MapMode = "FlatFace"
sketch27.AttachmentOffset = App.Placement(App.Vector(0, 0, -20), App.Rotation())
add_polygon(sketch27, [(37.9, -51.7), (42.4, -58), (45.1, -55.9), (40.1, -50)])
sketch27.addConstraint(Sketcher.Constraint("Parallel", 1, 3))
sketch27.addConstraint(Sketcher.Constraint("Equal", 0, 2))
sketch27.addConstraint(Sketcher.Constraint("Angle", 1, Q("37.5 deg")))
sketch27.addConstraint(Sketcher.Constraint("Distance", 1, 3.375))
sketch27.addConstraint(Sketcher.Constraint("DistanceY", 0, 2, -1, 1, 58.00226))
sketch27.addConstraint(Sketcher.Constraint("DistanceX", -1, 1, 1, 2, 45.05722))
sketch27.addConstraint(Sketcher.Constraint("DistanceX", -1, 1, 2, 2, 40.10956))
sketch27.addConstraint(Sketcher.Constraint("DistanceY", 3, 2, 2, 2, 1.661642))
pad27 = body27.newObject("PartDesign::Pad", "Pad026")
pad27.Profile = sketch27
pad27.Length = 40
body28 = doc.addObject("PartDesign::Body", "Body027")

sketch28 = body28.newObject("Sketcher::SketchObject", "Sketch027")
sketch28.AttachmentSupport = (doc.getObject("XY_Plane027"), [""])
sketch28.MapMode = "FlatFace"
sketch28.AttachmentOffset = App.Placement(App.Vector(0, 0, -20), App.Rotation())
add_polygon(sketch28, [(31.7, -42.9), (37.7, -51.4), (39.9, -49.7), (33.2, -41.8)])
sketch28.addConstraint(Sketcher.Constraint("Parallel", 1, 3))
sketch28.addConstraint(Sketcher.Constraint("Equal", 0, 2))
sketch28.addConstraint(Sketcher.Constraint("Angle", 1, Q("37.5 deg")))
sketch28.addConstraint(Sketcher.Constraint("Distance", 3, 1.875))
sketch28.addConstraint(Sketcher.Constraint("Distance", 0, 10.363199))
sketch28.addConstraint(Sketcher.Constraint("DistanceX", -1, 1, 1, 2, 39.874898))
sketch28.addConstraint(Sketcher.Constraint("DistanceX", -1, 1, 2, 2, 33.232568))
sketch28.addConstraint(Sketcher.Constraint("DistanceY", 3, 2, -1, 1, 42.910942))
pad28 = body28.newObject("PartDesign::Pad", "Pad027")
pad28.Profile = sketch28
pad28.Length = 40
body29 = doc.addObject("PartDesign::Body", "Body028")

sketch29 = body29.newObject("Sketcher::SketchObject", "Sketch028")
sketch29.AttachmentSupport = (doc.getObject("XY_Plane028"), [""])
sketch29.MapMode = "FlatFace"
sketch29.AttachmentOffset = App.Placement(App.Vector(0, 0, -20), App.Rotation())
add_polygon(sketch29, [(44.4, -46.3), (49.6, -52), (52, -49.6), (46.3, -44.4)])
sketch29.addConstraint(Sketcher.Constraint("Parallel", 1, 3))
sketch29.addConstraint(Sketcher.Constraint("Equal", 0, 2))
sketch29.addConstraint(Sketcher.Constraint("Angle", 1, Q("45 deg")))
sketch29.addConstraint(Sketcher.Constraint("Distance", 1, 3.375))
sketch29.addConstraint(Sketcher.Constraint("DistanceY", 0, 2, -1, 1, 51.974388))
sketch29.addConstraint(Sketcher.Constraint("DistanceX", -1, 1, 1, 2, 51.974388))
sketch29.addConstraint(Sketcher.Constraint("DistanceX", -1, 1, 2, 2, 46.296632))
sketch29.addConstraint(Sketcher.Constraint("DistanceY", 2, 2, -1, 1, 44.366552))
pad29 = body29.newObject("PartDesign::Pad", "Pad028")
pad29.Profile = sketch29
pad29.Length = 40
body30 = doc.addObject("PartDesign::Body", "Body029")

sketch30 = body30.newObject("Sketcher::SketchObject", "Sketch029")
sketch30.AttachmentSupport = (doc.getObject("XY_Plane029"), [""])
sketch30.MapMode = "FlatFace"
sketch30.AttachmentOffset = App.Placement(App.Vector(0, 0, -20), App.Rotation())
add_polygon(sketch30, [(51.3, -14.7), (61.2, -17.8), (61.9, -15.2), (51.8, -12.9)])
sketch30.addConstraint(Sketcher.Constraint("Parallel", 1, 3))
sketch30.addConstraint(Sketcher.Constraint("Equal", 0, 2))
sketch30.addConstraint(Sketcher.Constraint("Angle", 1, Q("75 deg")))
sketch30.addConstraint(Sketcher.Constraint("Distance", 3, 1.875))
sketch30.addConstraint(Sketcher.Constraint("Distance", 0, 10.363199))
sketch30.addConstraint(Sketcher.Constraint("DistanceY", 1, 2, 2, 2, 2.267199))
sketch30.addConstraint(Sketcher.Constraint("DistanceX", -1, 1, 2, 2, 51.792838))
sketch30.addConstraint(Sketcher.Constraint("DistanceY", 3, 2, -1, 1, 14.718389))
pad30 = body30.newObject("PartDesign::Pad", "Pad029")
pad30.Profile = sketch30
pad30.Length = 40
body31 = doc.addObject("PartDesign::Body", "Body030")

sketch31 = body31.newObject("Sketcher::SketchObject", "Sketch030")
sketch31.AttachmentSupport = (doc.getObject("XY_Plane030"), [""])
sketch31.MapMode = "FlatFace"
sketch31.AttachmentOffset = App.Placement(App.Vector(0, 0, -20), App.Rotation())
add_polygon(sketch31, [(63.4, -9.7), (71, -11), (71.4, -7.7), (63.7, -7)])
sketch31.addConstraint(Sketcher.Constraint("Parallel", 1, 3))
sketch31.addConstraint(Sketcher.Constraint("Equal", 0, 2))
sketch31.addConstraint(Sketcher.Constraint("Angle", 1, Q("82.5 deg")))
sketch31.addConstraint(Sketcher.Constraint("Distance", 1, 3.375))
sketch31.addConstraint(Sketcher.Constraint("DistanceX", 2, 2, 0, 2, 7.242498))
sketch31.addConstraint(Sketcher.Constraint("DistanceX", 3, 2, 1, 2, 8.039302))
sketch31.addConstraint(Sketcher.Constraint("DistanceX", -1, 1, 0, 2, 70.980731))
sketch31.addConstraint(Sketcher.Constraint("DistanceY", 0, 2, -1, 1, 11.046852))
pad31 = body31.newObject("PartDesign::Pad", "Pad030")
pad31.Profile = sketch31
pad31.Length = 40
body32 = doc.addObject("PartDesign::Body", "Body031")

sketch32 = body32.newObject("Sketcher::SketchObject", "Sketch031")
sketch32.AttachmentSupport = (doc.getObject("XY_Plane031"), [""])
sketch32.MapMode = "FlatFace"
sketch32.AttachmentOffset = App.Placement(App.Vector(0, 0, -20), App.Rotation())
add_polygon(sketch32, [(52.8, -7.9), (63, -9.7), (63.4, -7), (53, -6)])
sketch32.addConstraint(Sketcher.Constraint("Parallel", 1, 3))
sketch32.addConstraint(Sketcher.Constraint("Equal", 0, 2))
sketch32.addConstraint(Sketcher.Constraint("Angle", 1, Q("82.5 deg")))
sketch32.addConstraint(Sketcher.Constraint("Distance", 3, 1.875))
sketch32.addConstraint(Sketcher.Constraint("Distance", 0, 10.363199))
sketch32.addConstraint(Sketcher.Constraint("DistanceY", 1, 2, 2, 2, 0.927901))
sketch32.addConstraint(Sketcher.Constraint("DistanceX", -1, 1, 0, 2, 62.999779))
sketch32.addConstraint(Sketcher.Constraint("DistanceY", 3, 2, -1, 1, 7.895491))
pad32 = body32.newObject("PartDesign::Pad", "Pad031")
pad32.Profile = sketch32
pad32.Length = 40

doc.recompute()
